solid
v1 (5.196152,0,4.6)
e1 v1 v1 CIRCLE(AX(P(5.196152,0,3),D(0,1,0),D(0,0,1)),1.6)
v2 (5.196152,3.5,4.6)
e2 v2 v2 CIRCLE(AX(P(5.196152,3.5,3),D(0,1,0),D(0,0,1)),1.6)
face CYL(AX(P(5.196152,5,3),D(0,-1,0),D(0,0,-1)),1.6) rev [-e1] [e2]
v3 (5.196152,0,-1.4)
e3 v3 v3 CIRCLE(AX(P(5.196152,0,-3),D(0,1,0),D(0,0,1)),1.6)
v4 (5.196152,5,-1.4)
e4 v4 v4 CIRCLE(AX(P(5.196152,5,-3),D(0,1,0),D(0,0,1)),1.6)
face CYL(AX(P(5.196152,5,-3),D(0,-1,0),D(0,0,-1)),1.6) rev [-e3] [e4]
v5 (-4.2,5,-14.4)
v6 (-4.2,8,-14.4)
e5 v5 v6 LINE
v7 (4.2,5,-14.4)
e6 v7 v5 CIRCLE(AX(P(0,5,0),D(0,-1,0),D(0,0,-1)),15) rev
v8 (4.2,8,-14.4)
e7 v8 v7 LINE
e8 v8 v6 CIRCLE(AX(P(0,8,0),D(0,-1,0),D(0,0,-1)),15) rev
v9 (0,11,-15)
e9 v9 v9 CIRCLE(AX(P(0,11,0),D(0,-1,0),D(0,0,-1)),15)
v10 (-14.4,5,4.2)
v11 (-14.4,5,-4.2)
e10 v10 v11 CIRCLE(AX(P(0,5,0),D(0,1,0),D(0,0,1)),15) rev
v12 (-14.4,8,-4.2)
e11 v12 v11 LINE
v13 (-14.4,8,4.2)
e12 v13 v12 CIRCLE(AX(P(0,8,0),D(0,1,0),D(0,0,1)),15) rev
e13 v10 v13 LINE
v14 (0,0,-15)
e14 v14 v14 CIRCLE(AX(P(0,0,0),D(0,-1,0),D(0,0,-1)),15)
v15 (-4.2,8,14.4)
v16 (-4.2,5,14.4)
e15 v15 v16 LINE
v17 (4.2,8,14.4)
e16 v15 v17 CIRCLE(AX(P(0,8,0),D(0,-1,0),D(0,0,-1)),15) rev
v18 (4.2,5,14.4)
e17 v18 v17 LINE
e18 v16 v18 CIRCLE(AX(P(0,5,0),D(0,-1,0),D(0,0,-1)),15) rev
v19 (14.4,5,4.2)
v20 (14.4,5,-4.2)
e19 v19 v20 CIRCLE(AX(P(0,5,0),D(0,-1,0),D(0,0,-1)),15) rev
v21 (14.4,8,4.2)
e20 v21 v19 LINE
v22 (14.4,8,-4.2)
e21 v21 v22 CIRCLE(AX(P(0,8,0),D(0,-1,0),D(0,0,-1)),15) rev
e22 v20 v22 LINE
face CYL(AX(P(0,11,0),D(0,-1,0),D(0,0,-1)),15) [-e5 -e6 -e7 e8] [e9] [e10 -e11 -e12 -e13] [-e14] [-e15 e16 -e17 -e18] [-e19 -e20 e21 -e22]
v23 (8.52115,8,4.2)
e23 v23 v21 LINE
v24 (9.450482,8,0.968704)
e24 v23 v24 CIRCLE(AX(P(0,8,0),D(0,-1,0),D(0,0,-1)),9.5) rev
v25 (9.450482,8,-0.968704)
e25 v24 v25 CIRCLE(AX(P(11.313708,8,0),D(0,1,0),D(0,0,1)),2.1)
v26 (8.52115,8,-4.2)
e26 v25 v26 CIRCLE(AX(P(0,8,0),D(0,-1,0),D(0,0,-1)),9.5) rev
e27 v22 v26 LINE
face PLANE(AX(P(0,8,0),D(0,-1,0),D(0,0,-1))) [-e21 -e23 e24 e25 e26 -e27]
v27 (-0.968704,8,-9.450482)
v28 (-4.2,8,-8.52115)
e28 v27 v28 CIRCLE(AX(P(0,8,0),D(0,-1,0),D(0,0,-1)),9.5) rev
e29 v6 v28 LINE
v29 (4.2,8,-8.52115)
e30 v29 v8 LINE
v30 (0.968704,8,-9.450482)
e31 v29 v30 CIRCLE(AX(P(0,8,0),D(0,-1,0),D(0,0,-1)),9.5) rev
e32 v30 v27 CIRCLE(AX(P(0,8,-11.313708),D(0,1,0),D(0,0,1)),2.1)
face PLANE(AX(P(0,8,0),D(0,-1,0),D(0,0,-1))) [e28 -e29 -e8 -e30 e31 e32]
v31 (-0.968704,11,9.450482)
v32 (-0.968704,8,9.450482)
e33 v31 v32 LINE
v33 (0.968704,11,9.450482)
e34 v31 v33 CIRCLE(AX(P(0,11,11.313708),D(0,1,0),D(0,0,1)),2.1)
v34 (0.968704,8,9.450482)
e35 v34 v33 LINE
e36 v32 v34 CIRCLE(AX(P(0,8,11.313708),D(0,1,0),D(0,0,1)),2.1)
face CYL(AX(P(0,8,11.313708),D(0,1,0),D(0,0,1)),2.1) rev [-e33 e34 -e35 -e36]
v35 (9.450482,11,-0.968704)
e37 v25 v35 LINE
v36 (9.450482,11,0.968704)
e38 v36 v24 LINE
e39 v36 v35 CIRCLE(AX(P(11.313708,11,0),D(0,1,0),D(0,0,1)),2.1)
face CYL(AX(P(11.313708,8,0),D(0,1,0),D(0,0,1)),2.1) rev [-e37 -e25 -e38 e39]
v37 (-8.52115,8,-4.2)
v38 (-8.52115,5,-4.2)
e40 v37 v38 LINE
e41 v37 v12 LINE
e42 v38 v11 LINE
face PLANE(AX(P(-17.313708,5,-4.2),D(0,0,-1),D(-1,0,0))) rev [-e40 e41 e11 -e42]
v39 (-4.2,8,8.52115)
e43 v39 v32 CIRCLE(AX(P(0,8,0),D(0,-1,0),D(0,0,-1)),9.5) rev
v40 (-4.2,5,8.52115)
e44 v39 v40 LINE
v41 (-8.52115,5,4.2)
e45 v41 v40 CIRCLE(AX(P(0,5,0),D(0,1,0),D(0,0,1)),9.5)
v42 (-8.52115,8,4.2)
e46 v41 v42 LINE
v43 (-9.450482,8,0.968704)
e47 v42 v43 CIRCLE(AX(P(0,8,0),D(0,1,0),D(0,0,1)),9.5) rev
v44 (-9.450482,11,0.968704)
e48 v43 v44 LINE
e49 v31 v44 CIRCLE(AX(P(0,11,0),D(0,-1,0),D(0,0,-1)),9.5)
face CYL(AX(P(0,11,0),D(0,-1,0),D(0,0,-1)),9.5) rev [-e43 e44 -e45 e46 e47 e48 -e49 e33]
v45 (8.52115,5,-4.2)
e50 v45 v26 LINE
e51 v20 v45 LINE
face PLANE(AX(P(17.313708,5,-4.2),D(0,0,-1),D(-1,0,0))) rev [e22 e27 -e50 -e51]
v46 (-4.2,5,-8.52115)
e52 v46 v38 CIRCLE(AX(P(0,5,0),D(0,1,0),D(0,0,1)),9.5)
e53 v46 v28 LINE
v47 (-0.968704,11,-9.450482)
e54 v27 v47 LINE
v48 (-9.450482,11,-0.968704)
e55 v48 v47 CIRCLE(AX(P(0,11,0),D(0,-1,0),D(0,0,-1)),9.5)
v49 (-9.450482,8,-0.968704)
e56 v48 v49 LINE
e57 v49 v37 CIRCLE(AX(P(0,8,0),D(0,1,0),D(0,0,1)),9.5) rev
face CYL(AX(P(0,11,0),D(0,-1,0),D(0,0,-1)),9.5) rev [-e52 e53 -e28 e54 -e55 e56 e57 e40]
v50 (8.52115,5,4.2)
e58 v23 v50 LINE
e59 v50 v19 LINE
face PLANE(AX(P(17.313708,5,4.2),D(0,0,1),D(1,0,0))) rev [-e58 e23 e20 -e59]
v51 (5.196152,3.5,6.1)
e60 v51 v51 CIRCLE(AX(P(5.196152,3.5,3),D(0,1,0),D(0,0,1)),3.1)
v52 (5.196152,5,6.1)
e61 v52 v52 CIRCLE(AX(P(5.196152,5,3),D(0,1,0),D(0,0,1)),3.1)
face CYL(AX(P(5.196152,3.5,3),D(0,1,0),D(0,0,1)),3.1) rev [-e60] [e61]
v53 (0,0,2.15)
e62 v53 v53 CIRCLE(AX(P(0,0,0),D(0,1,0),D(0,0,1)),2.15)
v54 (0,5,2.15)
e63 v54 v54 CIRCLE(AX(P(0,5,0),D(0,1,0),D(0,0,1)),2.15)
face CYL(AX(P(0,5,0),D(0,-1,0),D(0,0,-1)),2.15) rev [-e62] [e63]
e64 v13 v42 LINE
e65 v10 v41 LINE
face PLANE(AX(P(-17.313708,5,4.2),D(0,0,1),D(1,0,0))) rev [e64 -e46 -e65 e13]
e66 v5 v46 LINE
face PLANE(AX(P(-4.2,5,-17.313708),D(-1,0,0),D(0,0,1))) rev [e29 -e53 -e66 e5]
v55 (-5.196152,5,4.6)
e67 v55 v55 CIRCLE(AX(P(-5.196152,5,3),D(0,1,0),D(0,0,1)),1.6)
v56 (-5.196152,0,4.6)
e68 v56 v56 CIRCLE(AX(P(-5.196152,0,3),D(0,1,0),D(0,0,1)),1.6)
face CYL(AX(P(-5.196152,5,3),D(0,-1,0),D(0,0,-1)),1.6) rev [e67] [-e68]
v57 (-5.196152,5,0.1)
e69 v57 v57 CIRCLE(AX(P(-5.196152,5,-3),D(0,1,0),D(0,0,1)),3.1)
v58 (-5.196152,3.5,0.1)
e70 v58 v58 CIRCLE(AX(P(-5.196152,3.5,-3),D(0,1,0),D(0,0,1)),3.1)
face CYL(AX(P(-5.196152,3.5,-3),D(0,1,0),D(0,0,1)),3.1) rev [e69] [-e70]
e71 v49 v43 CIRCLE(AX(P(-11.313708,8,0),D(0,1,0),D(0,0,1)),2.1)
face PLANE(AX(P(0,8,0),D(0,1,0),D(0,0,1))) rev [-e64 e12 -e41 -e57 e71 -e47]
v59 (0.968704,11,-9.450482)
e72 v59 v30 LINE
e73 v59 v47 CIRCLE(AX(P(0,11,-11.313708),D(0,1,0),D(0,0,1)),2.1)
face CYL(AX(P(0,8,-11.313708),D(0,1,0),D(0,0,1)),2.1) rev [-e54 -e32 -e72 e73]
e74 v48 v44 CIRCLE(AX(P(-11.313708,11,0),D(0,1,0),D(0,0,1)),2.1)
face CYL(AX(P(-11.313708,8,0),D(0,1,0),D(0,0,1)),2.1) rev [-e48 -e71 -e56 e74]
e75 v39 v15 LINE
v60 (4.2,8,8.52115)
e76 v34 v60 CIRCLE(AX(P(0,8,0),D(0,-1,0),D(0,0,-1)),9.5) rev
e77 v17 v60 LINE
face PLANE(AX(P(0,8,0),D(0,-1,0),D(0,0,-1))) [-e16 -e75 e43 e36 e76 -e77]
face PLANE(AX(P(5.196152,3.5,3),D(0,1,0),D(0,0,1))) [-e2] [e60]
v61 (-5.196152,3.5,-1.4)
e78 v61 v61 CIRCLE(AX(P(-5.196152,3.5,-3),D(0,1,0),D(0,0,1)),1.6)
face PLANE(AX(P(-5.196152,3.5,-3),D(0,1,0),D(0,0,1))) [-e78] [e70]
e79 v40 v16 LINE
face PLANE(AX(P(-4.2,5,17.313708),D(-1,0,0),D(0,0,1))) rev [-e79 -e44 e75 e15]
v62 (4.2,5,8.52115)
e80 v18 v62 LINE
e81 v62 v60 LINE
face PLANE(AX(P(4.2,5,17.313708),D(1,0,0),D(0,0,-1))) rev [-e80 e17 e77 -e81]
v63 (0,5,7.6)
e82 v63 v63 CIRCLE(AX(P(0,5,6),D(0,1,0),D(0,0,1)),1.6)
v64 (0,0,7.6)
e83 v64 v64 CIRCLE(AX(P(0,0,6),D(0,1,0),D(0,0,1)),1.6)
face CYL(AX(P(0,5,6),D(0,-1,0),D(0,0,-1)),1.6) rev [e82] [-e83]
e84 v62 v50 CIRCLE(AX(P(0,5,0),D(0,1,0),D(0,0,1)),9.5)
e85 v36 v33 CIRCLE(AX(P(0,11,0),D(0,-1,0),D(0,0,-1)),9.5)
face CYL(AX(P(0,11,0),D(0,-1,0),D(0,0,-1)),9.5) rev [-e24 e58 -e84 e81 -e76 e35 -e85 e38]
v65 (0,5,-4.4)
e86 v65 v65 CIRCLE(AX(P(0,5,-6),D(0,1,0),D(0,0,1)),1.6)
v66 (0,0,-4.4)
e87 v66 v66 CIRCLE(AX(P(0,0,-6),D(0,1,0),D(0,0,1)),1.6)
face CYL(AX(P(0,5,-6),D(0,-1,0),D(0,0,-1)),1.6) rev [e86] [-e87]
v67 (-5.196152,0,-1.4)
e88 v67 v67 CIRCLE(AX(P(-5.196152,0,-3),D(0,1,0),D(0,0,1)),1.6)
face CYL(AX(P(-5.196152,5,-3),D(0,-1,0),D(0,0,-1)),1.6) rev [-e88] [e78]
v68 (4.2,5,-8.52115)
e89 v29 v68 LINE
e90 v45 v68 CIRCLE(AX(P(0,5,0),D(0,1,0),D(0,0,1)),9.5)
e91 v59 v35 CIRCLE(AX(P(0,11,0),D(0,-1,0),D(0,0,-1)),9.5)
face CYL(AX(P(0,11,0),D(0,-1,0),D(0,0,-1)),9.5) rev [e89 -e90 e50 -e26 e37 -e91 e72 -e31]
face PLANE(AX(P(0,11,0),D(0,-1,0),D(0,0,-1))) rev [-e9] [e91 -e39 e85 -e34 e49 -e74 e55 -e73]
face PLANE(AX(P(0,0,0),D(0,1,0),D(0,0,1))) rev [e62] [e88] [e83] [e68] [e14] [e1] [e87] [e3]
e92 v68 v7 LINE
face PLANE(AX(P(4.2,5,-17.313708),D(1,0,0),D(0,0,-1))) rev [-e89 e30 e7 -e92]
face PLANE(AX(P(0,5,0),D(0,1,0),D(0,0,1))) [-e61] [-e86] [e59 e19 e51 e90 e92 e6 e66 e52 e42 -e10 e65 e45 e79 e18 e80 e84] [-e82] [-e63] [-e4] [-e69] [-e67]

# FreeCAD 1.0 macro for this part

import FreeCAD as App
import Part
import Sketcher
from FreeCAD import Vector
Q = App.Units.Quantity


def add_polygon(sketch, points):
    """Adds a closed chain of lines whose ends are joined by coincident constraints."""
    first, n = sketch.GeometryCount, len(points)
    for a, b in zip(points, points[1:] + points[:1]):
        sketch.addGeometry(Part.LineSegment(App.Vector(*a, 0), App.Vector(*b, 0)), False)
    for i in range(n):
        sketch.addConstraint(Sketcher.Constraint("Coincident", first + i, 2, first + (i + 1) % n, 1))

doc = App.newDocument("Part")
body = doc.addObject("PartDesign::Body", "Body")

# Sketch on XZ plane
sketch1 = body.newObject("Sketcher::SketchObject", "Sketch")
sketch1.AttachmentSupport = (doc.getObject("XZ_Plane"), [""])
sketch1.MapMode = "FlatFace"
sketch1.addGeometry([
    Part.Circle(Vector(0, 0, 0), Vector(0, 0, 1), 10),  # 0
    Part.Circle(Vector(-5.2, -3, 0), Vector(0, 0, 1), 1.6),  # 1
    Part.Circle(Vector(0, -6, 0), Vector(0, 0, 1), 1.6),  # 2
    Part.Circle(Vector(-5.2, 3, 0), Vector(0, 0, 1), 1.6),  # 3
    Part.Circle(Vector(0, 0, 0), Vector(0, 0, 1), 2.1),  # 4
    Part.Circle(Vector(5.2, -3, 0), Vector(0, 0, 1), 1.6),  # 5
    Part.Circle(Vector(0, 6, 0), Vector(0, 0, 1), 1.6),  # 6
    Part.Circle(Vector(5.2, 3, 0), Vector(0, 0, 1), 1.6),  # 7
], False)
sketch1.addConstraint([
    Sketcher.Constraint("Coincident", 0, 3, -1, 1),
    Sketcher.Constraint("Coincident", 4, 3, -1, 1),
    Sketcher.Constraint("Equal", 1, 2),
    Sketcher.Constraint("Equal", 2, 3),
    Sketcher.Constraint("Equal", 3, 5),
    Sketcher.Constraint("Equal", 5, 6),
    Sketcher.Constraint("Equal", 6, 7),
    Sketcher.Constraint("Symmetric", 3, 3, 5, 3, -1, 1),
    Sketcher.Constraint("Symmetric", 2, 3, 6, 3, -1, 1),
    Sketcher.Constraint("Symmetric", 1, 3, 7, 3, -1, 1),
    Sketcher.Constraint("Symmetric", 1, 3, 5, 3, -2),
    Sketcher.Constraint("PointOnObject", 2, 3, -2),
    Sketcher.Constraint("Diameter", 0, Q("20 mm")),
    Sketcher.Constraint("Diameter", 1, Q("3.2 mm")),
    Sketcher.Constraint("Diameter", 4, Q("4.3 mm")),
    Sketcher.Constraint("DistanceY", 1, 3, -1, 1, Q("3 mm")),
    Sketcher.Constraint("DistanceY", 2, 3, -1, 1, Q("6 mm")),
    Sketcher.Constraint("DistanceX", 1, 3, -1, 1, Q("5.196152 mm")),
])
pad1 = body.newObject("PartDesign::Pad", "Pad")
pad1.Profile = sketch1
pad1.Length = 5
pad1.Reversed = True

# Sketch on XZ plane
sketch2 = body.newObject("Sketcher::SketchObject", "Sketch001")
sketch2.AttachmentSupport = (doc.getObject("XZ_Plane"), [""])
sketch2.MapMode = "FlatFace"
sketch2.AttachmentOffset = App.Placement(Vector(0, 0, -5), App.Rotation())
sketch2.addGeometry([
    Part.Circle(Vector(-5.2, -3, 0), Vector(0, 0, 1), 3.1),
    Part.Circle(Vector(5.2, 3, 0), Vector(0, 0, 1), 3.1),
], False)
sketch2.addConstraint([
    Sketcher.Constraint("Equal", 0, 1),
    Sketcher.Constraint("Symmetric", 0, 3, 1, 3, -1, 1),
    Sketcher.Constraint("Diameter", 0, Q("6.2 mm")),
    Sketcher.Constraint("DistanceY", 0, 3, -1, 1, Q("3 mm")),
    Sketcher.Constraint("DistanceX", 0, 3, -1, 1, Q("5.196152 mm")),
])
pocket1 = body.newObject("PartDesign::Pocket", "Pocket")
pocket1.Profile = sketch2
pocket1.Length = 1.5
pocket1.Reversed = True

# Sketch on XZ plane
sketch3 = body.newObject("Sketcher::SketchObject", "Sketch002")
sketch3.AttachmentSupport = (doc.getObject("XZ_Plane"), [""])
sketch3.MapMode = "FlatFace"
sketch3.addGeometry([
    Part.Circle(Vector(0, 0, 0), Vector(0, 0, 1), 15),
    Part.Circle(Vector(0, 0, 0), Vector(0, 0, 1), 10),
], False)
sketch3.addConstraint([
    Sketcher.Constraint("Coincident", 0, 3, -1, 1),
    Sketcher.Constraint("Coincident", 1, 3, -1, 1),
    Sketcher.Constraint("Diameter", 0, Q("30 mm")),
    Sketcher.Constraint("Diameter", 1, Q("19 mm")),
])
pad2 = body.newObject("PartDesign::Pad", "Pad001")
pad2.Profile = sketch3
pad2.Length = 11
pad2.Reversed = True

# Sketch on XZ plane
sketch4 = body.newObject("Sketcher::SketchObject", "Sketch003")
sketch4.AttachmentSupport = (doc.getObject("XZ_Plane"), [""])
sketch4.MapMode = "FlatFace"
sketch4.AttachmentOffset = App.Placement(Vector(0, 0, -11), App.Rotation())
sketch4.addGeometry([
    Part.Circle(Vector(0, -11.3, 0), Vector(0, 0, 1), 2.1),
    Part.Circle(Vector(11.3, 0, 0), Vector(0, 0, 1), 2.1),
    Part.Circle(Vector(0, 11.3, 0), Vector(0, 0, 1), 2.1),
    Part.Circle(Vector(-11.3, 0, 0), Vector(0, 0, 1), 2.1),
], False)
sketch4.addConstraint([
    Sketcher.Constraint("Equal", 0, 1),
    Sketcher.Constraint("Equal", 1, 2),
    Sketcher.Constraint("Equal", 2, 3),
    Sketcher.Constraint("Symmetric", 0, 3, 2, 3, -1, 1),
    Sketcher.Constraint("Symmetric", 1, 3, 3, 3, -1, 1),
    Sketcher.Constraint("PointOnObject", 0, 3, -2),
    Sketcher.Constraint("PointOnObject", 1, 3, -1),
    Sketcher.Constraint("Diameter", 0, Q("4.2 mm")),
    Sketcher.Constraint("DistanceY", 0, 3, -1, 1, Q("11.313708 mm")),
    Sketcher.Constraint("DistanceX", -1, 1, 1, 3, Q("11.313708 mm")),
])
pocket2 = body.newObject("PartDesign::Pocket", "Pocket001")
pocket2.Profile = sketch4
pocket2.Length = 3
pocket2.Reversed = True

# Sketch on XZ plane
sketch5 = body.newObject("Sketcher::SketchObject", "Sketch004")
sketch5.AttachmentSupport = (doc.getObject("XZ_Plane"), [""])
sketch5.MapMode = "FlatFace"
sketch5.AttachmentOffset = App.Placement(Vector(0, 0, -8), App.Rotation())
add_polygon(sketch5, [(-17, -4), (-17, 4), (-7, 4), (-7, -4)])  # lines 0-3
add_polygon(sketch5, [(-4, -17), (-4, -7), (4, -7), (4, -17)])  # lines 4-7
add_polygon(sketch5, [(7, -4), (7, 4), (17, 4), (17, -4)])  # lines 8-11
add_polygon(sketch5, [(-4, 7), (-4, 17), (4, 17), (4, 7)])  # lines 12-15
sketch5.addConstraint([
    Sketcher.Constraint("Vertical", 0),
    Sketcher.Constraint("Horizontal", 1),
    Sketcher.Constraint("Vertical", 2),
    Sketcher.Constraint("Horizontal", 3),
    Sketcher.Constraint("Vertical", 4),
    Sketcher.Constraint("Horizontal", 5),
    Sketcher.Constraint("Vertical", 6),
    Sketcher.Constraint("Horizontal", 7),
    Sketcher.Constraint("Vertical", 8),
    Sketcher.Constraint("Horizontal", 9),
    Sketcher.Constraint("Vertical", 10),
    Sketcher.Constraint("Horizontal", 11),
    Sketcher.Constraint("Vertical", 12),
    Sketcher.Constraint("Horizontal", 13),
    Sketcher.Constraint("Vertical", 14),
    Sketcher.Constraint("Horizontal", 15),
    Sketcher.Constraint("Symmetric", 2, 2, 8, 2, -1, 1),
    Sketcher.Constraint("Symmetric", 0, 2, 10, 2, -1, 1),
    Sketcher.Constraint("Symmetric", 6, 2, 12, 2, -1, 1),
    Sketcher.Constraint("Symmetric", 4, 2, 14, 2, -1, 1),
    Sketcher.Constraint("Horizontal", 1, 2, 8, 2),
    Sketcher.Constraint("Vertical", 7, 2, 12, 2),
    Sketcher.Constraint("Equal", 15, 0),
    Sketcher.Constraint("Equal", 11, 4),
    Sketcher.Constraint("DistanceX", 1, 1, 1, 2, Q("10 mm")),
    Sketcher.Constraint("DistanceX", 5, 1, 5, 2, Q("8.4 mm")),
    Sketcher.Constraint("DistanceX", 0, 2, -1, 1, Q("17.313708 mm")),
    Sketcher.Constraint("DistanceY", 4, 2, -1, 1, Q("7.313708 mm")),
])
pocket3 = body.newObject("PartDesign::Pocket", "Pocket002")
pocket3.Profile = sketch5
pocket3.Length = 3
pocket3.Reversed = True

doc.recompute()
